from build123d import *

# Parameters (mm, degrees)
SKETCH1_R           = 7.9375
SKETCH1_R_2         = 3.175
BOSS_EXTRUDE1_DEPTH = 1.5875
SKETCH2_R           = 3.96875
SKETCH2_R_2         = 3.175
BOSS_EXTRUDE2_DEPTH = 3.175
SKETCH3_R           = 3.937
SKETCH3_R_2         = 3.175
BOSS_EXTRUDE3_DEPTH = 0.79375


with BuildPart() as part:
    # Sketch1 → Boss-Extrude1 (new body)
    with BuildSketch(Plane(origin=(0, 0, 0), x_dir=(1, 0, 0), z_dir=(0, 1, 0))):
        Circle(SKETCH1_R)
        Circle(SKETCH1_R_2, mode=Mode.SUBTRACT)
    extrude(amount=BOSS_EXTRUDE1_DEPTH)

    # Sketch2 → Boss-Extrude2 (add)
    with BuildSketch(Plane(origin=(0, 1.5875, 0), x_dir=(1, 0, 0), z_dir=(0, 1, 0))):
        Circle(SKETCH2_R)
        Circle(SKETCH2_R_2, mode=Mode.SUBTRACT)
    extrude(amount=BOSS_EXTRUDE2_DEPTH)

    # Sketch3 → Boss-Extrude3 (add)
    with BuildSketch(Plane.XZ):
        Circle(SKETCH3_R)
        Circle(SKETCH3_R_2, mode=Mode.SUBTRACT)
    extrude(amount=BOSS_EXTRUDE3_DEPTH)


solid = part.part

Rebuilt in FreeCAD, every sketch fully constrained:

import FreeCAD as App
import Part
import Sketcher
Q = App.Units.Quantity

doc = App.newDocument("Part")
body = doc.addObject("PartDesign::Body", "Body")

# Sketch on XZ plane
sketch1 = doc.addObject("Sketcher::SketchObject", "Sketch")
body.addObject(sketch1)
sketch1.AttachmentSupport = (doc.XZ_Plane, [""])
sketch1.MapMode = "FlatFace"
sketch1.addGeometry([
    Part.Circle(App.Vector(0, 0, 0), App.Vector(0, 0, 1), 7.9),
    Part.Circle(App.Vector(0, 0, 0), App.Vector(0, 0, 1), 3.2),
], False)
sketch1.addConstraint([
    Sketcher.Constraint("Coincident", 0, 3, -1, 1),
    Sketcher.Constraint("Coincident", 1, 3, -1, 1),
    Sketcher.Constraint("Diameter", 1, Q("0.25 in")),
    Sketcher.Constraint("Diameter", 0, Q("0.625 in")),
])
pad1 = doc.addObject("PartDesign::Pad", "Pad")
body.addObject(pad1)
pad1.Profile = sketch1
pad1.Length = Q("0.0625 in")
pad1.Reversed = True

# Sketch on XZ plane
sketch2 = doc.addObject("Sketcher::SketchObject", "Sketch001")
body.addObject(sketch2)
sketch2.AttachmentSupport = (doc.XZ_Plane, [""])
sketch2.MapMode = "FlatFace"
sketch2.AttachmentOffset = App.Placement(App.Vector(0, 0, -0.0625 * 25.4), App.Rotation())
sketch2.addGeometry([
    Part.Circle(App.Vector(0, 0, 0), App.Vector(0, 0, 1), 4),
    Part.Circle(App.Vector(0, 0, 0), App.Vector(0, 0, 1), 3.2),
], False)
sketch2.addConstraint([
    Sketcher.Constraint("Coincident", 0, 3, -1, 1),
    Sketcher.Constraint("Coincident", 1, 3, -1, 1),
    Sketcher.Constraint("Diameter", 1, Q("0.25 in")),
    Sketcher.Constraint("Diameter", 0, Q("0.3125 in")),
])
pad2 = doc.addObject("PartDesign::Pad", "Pad001")
body.addObject(pad2)
pad2.Profile = sketch2
pad2.Length = Q("0.125 in")
pad2.Reversed = True

# Sketch on XZ plane
sketch3 = doc.addObject("Sketcher::SketchObject", "Sketch002")
body.addObject(sketch3)
sketch3.AttachmentSupport = (doc.XZ_Plane, [""])
sketch3.MapMode = "FlatFace"
sketch3.addGeometry([
    Part.Circle(App.Vector(0, 0, 0), App.Vector(0, 0, 1), 3.9),
    Part.Circle(App.Vector(0, 0, 0), App.Vector(0, 0, 1), 3.2),
], False)
sketch3.addConstraint([
    Sketcher.Constraint("Coincident", 0, 3, -1, 1),
    Sketcher.Constraint("Coincident", 1, 3, -1, 1),
    Sketcher.Constraint("Diameter", 0, Q("0.31 in")),
    Sketcher.Constraint("Diameter", 1, Q("0.25 in")),
])
pad3 = doc.addObject("PartDesign::Pad", "Pad002")
body.addObject(pad3)
pad3.Profile = sketch3
pad3.Length = Q("0.03125 in")

doc.recompute()
